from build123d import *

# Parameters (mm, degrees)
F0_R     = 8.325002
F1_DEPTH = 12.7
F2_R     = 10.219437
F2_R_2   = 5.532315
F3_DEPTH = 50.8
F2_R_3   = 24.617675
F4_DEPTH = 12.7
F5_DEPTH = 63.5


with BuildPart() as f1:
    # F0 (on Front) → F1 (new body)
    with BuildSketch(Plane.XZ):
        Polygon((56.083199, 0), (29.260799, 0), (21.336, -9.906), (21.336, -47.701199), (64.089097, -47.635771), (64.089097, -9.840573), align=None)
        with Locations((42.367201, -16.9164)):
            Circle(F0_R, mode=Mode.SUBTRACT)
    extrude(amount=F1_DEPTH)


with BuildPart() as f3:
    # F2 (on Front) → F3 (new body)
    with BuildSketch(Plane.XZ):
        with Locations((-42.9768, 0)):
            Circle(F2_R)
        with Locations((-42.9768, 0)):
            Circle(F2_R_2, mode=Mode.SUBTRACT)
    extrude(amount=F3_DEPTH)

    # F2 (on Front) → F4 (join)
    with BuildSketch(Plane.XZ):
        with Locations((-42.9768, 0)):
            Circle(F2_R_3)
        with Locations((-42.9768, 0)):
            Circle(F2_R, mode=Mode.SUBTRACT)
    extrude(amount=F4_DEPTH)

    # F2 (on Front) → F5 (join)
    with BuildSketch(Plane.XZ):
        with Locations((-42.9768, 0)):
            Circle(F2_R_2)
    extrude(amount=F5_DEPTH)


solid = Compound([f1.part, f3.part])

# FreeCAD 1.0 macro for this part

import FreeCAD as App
import Part
import Sketcher
Q = App.Units.Quantity


def add_polygon(sketch, points):
    """Adds a closed chain of lines whose ends are joined by coincident constraints."""
    first, n = sketch.GeometryCount, len(points)
    for a, b in zip(points, points[1:] + points[:1]):
        sketch.addGeometry(Part.LineSegment(App.Vector(*a, 0), App.Vector(*b, 0)), False)
    for i in range(n):
        sketch.addConstraint(Sketcher.Constraint("Coincident", first + i, 2, first + (i + 1) % n, 1))

doc = App.newDocument("Part")
body = doc.addObject("PartDesign::Body", "Body")

# Sketch on XZ plane
sketch1 = doc.addObject("Sketcher::SketchObject", "Sketch")
body.addObject(sketch1)
sketch1.AttachmentSupport = (doc.XZ_Plane, [""])
sketch1.MapMode = "FlatFace"
add_polygon(sketch1, [(56, 0), (29, 0), (21, -10), (21, -48), (64, -48), (64, -10)])  # lines 0-5
sketch1.addGeometry(Part.Circle(App.Vector(42, -17, 0), App.Vector(0, 0, 1), 8), False)  # 6
sketch1.addConstraint(Sketcher.Constraint("Horizontal", 0))
sketch1.addConstraint(Sketcher.Constraint("Vertical", 2))
sketch1.addConstraint(Sketcher.Constraint("Vertical", 4))
sketch1.addConstraint(Sketcher.Constraint("PointOnObject", 0, 2, -1))
sketch1.addConstraint(Sketcher.Constraint("Equal", 2, 4))
sketch1.addConstraint(Sketcher.Constraint("Equal", 1, 5))
sketch1.addConstraint(Sketcher.Constraint("DistanceX", 0, 2, 0, 1, Q("1.056 in")))
sketch1.addConstraint(Sketcher.Constraint("DistanceY", 2, 2, 2, 1, Q("1.488 in")))
sketch1.addConstraint(Sketcher.Constraint("DistanceX", -1, 1, 1, 2, Q("0.84 in")))
sketch1.addConstraint(Sketcher.Constraint("DistanceY", 1, 2, -1, 1, Q("0.39 in")))
sketch1.addConstraint(Sketcher.Constraint("DistanceX", 6, 3, 5, 2, Q("0.5399999 in")))
sketch1.addConstraint(Sketcher.Constraint("DistanceX", -1, 1, 6, 3, Q("1.668 in")))
sketch1.addConstraint(Sketcher.Constraint("DistanceY", 6, 3, -1, 1, Q("0.666 in")))
sketch1.addConstraint(Sketcher.Constraint("Diameter", 6, 16.650004))
sketch1.addConstraint(Sketcher.Constraint("DistanceY", 3, 2, -1, 1, 47.635771))
pad1 = doc.addObject("PartDesign::Pad", "Pad")
body.addObject(pad1)
pad1.Profile = sketch1
pad1.Length = Q("0.5 in")
body2 = doc.addObject("PartDesign::Body", "Body001")

# Sketch on XZ plane
sketch2 = doc.addObject("Sketcher::SketchObject", "Sketch001")
body2.addObject(sketch2)
sketch2.AttachmentSupport = (doc.getObject("XZ_Plane001"), [""])
sketch2.MapMode = "FlatFace"
sketch2.addGeometry(Part.Circle(App.Vector(-43, 0, 0), App.Vector(0, 0, 1), 10), False)
sketch2.addGeometry(Part.Circle(App.Vector(-43, 0, 0), App.Vector(0, 0, 1), 6), False)
sketch2.addConstraint(Sketcher.Constraint("Coincident", 1, 3, 0, 3))
sketch2.addConstraint(Sketcher.Constraint("PointOnObject", 0, 3, -1))
sketch2.addConstraint(Sketcher.Constraint("Diameter", 1, 11.06463))
sketch2.addConstraint(Sketcher.Constraint("DistanceX", 0, 3, -1, 1, Q("1.692 in")))
sketch2.addConstraint(Sketcher.Constraint("Diameter", 0, 20.438874))
pad2 = doc.addObject("PartDesign::Pad", "Pad001")
body2.addObject(pad2)
pad2.Profile = sketch2
pad2.Length = Q("2 in")

# Sketch on XZ plane
sketch3 = doc.addObject("Sketcher::SketchObject", "Sketch002")
body2.addObject(sketch3)
sketch3.AttachmentSupport = (doc.getObject("XZ_Plane001"), [""])
sketch3.MapMode = "FlatFace"
sketch3.addGeometry(Part.Circle(App.Vector(-43, 0, 0), App.Vector(0, 0, 1), 25), False)
sketch3.addGeometry(Part.Circle(App.Vector(-43, 0, 0), App.Vector(0, 0, 1), 10), False)
sketch3.addConstraint(Sketcher.Constraint("Coincident", 1, 3, 0, 3))
sketch3.addConstraint(Sketcher.Constraint("PointOnObject", 0, 3, -1))
sketch3.addConstraint(Sketcher.Constraint("Diameter", 0, 49.23535))
sketch3.addConstraint(Sketcher.Constraint("DistanceX", 0, 3, -1, 1, Q("1.692 in")))
sketch3.addConstraint(Sketcher.Constraint("Diameter", 1, 20.438874))
pad3 = doc.addObject("PartDesign::Pad", "Pad002")
body2.addObject(pad3)
pad3.Profile = sketch3
pad3.Length = Q("0.5 in")

# Sketch on XZ plane
sketch4 = doc.addObject("Sketcher::SketchObject", "Sketch003")
body2.addObject(sketch4)
sketch4.AttachmentSupport = (doc.getObject("XZ_Plane001"), [""])
sketch4.MapMode = "FlatFace"
sketch4.addGeometry(Part.Circle(App.Vector(-43, 0, 0), App.Vector(0, 0, 1), 6), False)
sketch4.addConstraint(Sketcher.Constraint("PointOnObject", 0, 3, -1))
sketch4.addConstraint(Sketcher.Constraint("Diameter", 0, 11.06463))
sketch4.addConstraint(Sketcher.Constraint("DistanceX", 0, 3, -1, 1, Q("1.692 in")))
pad4 = doc.addObject("PartDesign::Pad", "Pad003")
body2.addObject(pad4)
pad4.Profile = sketch4
pad4.Length = Q("2.5 in")

doc.recompute()
